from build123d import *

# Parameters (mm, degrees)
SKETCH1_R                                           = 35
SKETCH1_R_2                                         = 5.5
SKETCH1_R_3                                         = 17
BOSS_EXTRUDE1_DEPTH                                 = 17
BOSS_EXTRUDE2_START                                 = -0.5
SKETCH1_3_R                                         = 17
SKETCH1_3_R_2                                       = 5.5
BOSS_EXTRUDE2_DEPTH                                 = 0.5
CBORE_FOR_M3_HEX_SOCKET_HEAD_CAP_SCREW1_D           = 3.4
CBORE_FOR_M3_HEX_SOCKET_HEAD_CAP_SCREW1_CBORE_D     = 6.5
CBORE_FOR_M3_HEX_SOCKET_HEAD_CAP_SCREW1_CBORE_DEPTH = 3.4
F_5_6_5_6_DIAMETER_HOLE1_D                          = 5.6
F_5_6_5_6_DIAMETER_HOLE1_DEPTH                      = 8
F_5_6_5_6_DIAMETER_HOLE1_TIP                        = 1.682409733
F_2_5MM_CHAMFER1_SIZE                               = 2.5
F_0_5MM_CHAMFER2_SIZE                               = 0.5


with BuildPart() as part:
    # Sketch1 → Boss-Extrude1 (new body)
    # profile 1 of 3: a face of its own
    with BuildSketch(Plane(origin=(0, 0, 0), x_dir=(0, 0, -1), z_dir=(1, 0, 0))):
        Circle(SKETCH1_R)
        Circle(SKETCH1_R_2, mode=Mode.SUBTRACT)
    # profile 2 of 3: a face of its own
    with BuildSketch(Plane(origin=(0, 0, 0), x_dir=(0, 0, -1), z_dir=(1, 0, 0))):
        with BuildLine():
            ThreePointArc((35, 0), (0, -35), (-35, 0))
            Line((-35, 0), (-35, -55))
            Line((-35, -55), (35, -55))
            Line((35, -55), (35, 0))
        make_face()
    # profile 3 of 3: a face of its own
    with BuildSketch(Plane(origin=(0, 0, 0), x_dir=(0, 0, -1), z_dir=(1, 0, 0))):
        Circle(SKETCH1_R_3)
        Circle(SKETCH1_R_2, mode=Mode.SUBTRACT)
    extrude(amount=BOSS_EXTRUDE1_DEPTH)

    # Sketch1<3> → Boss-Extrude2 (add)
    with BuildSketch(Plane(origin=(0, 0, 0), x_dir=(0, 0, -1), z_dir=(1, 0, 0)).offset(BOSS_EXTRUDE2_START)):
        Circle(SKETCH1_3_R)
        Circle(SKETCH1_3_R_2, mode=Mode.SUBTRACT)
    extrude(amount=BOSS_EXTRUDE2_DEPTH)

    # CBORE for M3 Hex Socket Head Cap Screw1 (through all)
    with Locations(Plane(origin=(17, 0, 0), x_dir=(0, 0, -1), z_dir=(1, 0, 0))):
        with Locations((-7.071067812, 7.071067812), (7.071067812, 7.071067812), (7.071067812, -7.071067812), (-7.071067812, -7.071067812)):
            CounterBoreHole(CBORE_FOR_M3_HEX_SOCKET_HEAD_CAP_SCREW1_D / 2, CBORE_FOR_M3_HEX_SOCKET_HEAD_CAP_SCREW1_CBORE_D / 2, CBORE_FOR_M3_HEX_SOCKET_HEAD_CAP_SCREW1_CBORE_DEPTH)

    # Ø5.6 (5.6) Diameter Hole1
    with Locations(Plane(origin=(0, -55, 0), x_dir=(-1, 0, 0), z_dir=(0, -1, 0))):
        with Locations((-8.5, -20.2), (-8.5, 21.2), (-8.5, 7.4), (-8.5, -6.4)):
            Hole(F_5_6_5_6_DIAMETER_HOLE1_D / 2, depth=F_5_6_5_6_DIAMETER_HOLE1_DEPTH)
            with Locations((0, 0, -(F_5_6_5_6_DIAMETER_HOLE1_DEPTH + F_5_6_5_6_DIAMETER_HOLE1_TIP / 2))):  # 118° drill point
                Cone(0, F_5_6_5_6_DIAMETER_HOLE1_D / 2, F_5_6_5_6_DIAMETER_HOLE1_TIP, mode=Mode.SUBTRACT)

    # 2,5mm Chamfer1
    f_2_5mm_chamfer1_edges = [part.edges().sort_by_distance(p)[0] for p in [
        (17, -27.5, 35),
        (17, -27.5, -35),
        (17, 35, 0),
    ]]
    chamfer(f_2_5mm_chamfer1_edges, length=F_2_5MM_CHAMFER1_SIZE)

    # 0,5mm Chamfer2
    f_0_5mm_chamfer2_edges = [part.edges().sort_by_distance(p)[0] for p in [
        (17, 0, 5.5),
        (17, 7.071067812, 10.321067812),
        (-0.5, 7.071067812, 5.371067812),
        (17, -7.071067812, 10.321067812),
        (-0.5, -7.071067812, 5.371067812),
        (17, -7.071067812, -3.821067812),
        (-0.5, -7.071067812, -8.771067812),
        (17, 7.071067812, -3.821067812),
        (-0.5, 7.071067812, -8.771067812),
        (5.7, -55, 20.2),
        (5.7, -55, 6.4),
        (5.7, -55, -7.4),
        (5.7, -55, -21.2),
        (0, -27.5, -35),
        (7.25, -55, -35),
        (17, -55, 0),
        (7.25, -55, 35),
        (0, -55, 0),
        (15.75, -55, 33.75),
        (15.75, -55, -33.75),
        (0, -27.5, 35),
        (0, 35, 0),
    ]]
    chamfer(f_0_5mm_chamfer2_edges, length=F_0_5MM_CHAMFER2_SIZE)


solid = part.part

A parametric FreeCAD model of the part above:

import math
import FreeCAD as App
import Part
import Sketcher
Q = App.Units.Quantity


def edges_at(feature, points):
    """Names of the edges that pass closest to the given points."""
    edges = feature.Shape.Edges
    near = lambda p: min(range(len(edges)), key=lambda i: edges[i].distToShape(Part.Vertex(*p))[0])
    return sorted({f"Edge{near(p) + 1}" for p in points})

doc = App.newDocument("Part")
body = doc.addObject("PartDesign::Body", "Body")

sketch1 = body.newObject("Sketcher::SketchObject", "Sketch")
sketch1.AttachmentSupport = (doc.getObject("YZ_Plane"), [""])
sketch1.MapMode = "FlatFace"
sketch1.addGeometry([
    Part.ArcOfCircle(Part.Circle(App.Vector(0, 0, 0), App.Vector(0, 0, 1), 35), math.radians(-90), math.radians(90)),
    Part.LineSegment(App.Vector(0, 35, 0), App.Vector(-55, 35, 0)),
    Part.LineSegment(App.Vector(-55, 35, 0), App.Vector(-55, -35, 0)),
    Part.LineSegment(App.Vector(-55, -35, 0), App.Vector(0, -35, 0)),
    Part.Circle(App.Vector(0, 0, 0), App.Vector(0, 0, 1), 5.5),
], False)
sketch1.addConstraint([
    Sketcher.Constraint("Tangent", 0, 2, 1, 1),
    Sketcher.Constraint("Coincident", 1, 2, 2, 1),
    Sketcher.Constraint("Coincident", 2, 2, 3, 1),
    Sketcher.Constraint("Tangent", 3, 2, 0, 1),
    Sketcher.Constraint("Horizontal", 1),
    Sketcher.Constraint("Vertical", 2),
    Sketcher.Constraint("Horizontal", 3),
    Sketcher.Constraint("Coincident", 0, 3, -1, 1),
    Sketcher.Constraint("Coincident", 4, 3, -1, 1),
    Sketcher.Constraint("Diameter", 4, Q("11 mm")),
    Sketcher.Constraint("Radius", 0, Q("35 mm")),
    Sketcher.Constraint("DistanceX", 1, 2, 1, 1, Q("55 mm")),
])
pad1 = body.newObject("PartDesign::Pad", "Pad")
pad1.Profile = sketch1
pad1.Length = 17

sketch2 = body.newObject("Sketcher::SketchObject", "Sketch001")
sketch2.AttachmentSupport = (doc.getObject("YZ_Plane"), [""])
sketch2.MapMode = "FlatFace"
sketch2.AttachmentOffset = App.Placement(App.Vector(0, 0, -0.5), App.Rotation())
sketch2.addGeometry([
    Part.Circle(App.Vector(0, 0, 0), App.Vector(0, 0, 1), 17),
    Part.Circle(App.Vector(0, 0, 0), App.Vector(0, 0, 1), 5.5),
], False)
sketch2.addConstraint([
    Sketcher.Constraint("Coincident", 0, 3, -1, 1),
    Sketcher.Constraint("Coincident", 1, 3, -1, 1),
    Sketcher.Constraint("Diameter", 0, Q("34 mm")),
    Sketcher.Constraint("Diameter", 1, Q("11 mm")),
])
pad2 = body.newObject("PartDesign::Pad", "Pad001")
pad2.Profile = sketch2
pad2.Length = 0.5

sketch3 = body.newObject("Sketcher::SketchObject", "Sketch002")
sketch3.AttachmentSupport = (doc.getObject("YZ_Plane"), [""])
sketch3.MapMode = "FlatFace"
sketch3.AttachmentOffset = App.Placement(App.Vector(0, 0, 17), App.Rotation())
sketch3.addGeometry([
    Part.Circle(App.Vector(7.071068, 7.071068, 0), App.Vector(0, 0, 1), 1.7),
    Part.Circle(App.Vector(7.071068, -7.071068, 0), App.Vector(0, 0, 1), 1.7),
    Part.Circle(App.Vector(-7.071068, -7.071068, 0), App.Vector(0, 0, 1), 1.7),
    Part.Circle(App.Vector(-7.071068, 7.071068, 0), App.Vector(0, 0, 1), 1.7),
], False)
sketch3.addConstraint([
    Sketcher.Constraint("Equal", 0, 1),
    Sketcher.Constraint("Equal", 1, 2),
    Sketcher.Constraint("Equal", 2, 3),
    Sketcher.Constraint("Symmetric", 0, 3, 2, 3, -1, 1),
    Sketcher.Constraint("Symmetric", 1, 3, 3, 3, -1, 1),
    Sketcher.Constraint("Symmetric", 1, 3, 2, 3, -2),
    Sketcher.Constraint("Diameter", 0, Q("3.4 mm")),
    Sketcher.Constraint("DistanceX", -1, 1, 0, 3, Q("7.071068 mm")),
    Sketcher.Constraint("DistanceY", -1, 1, 0, 3, Q("7.071068 mm")),
])
doc.recompute()
hole = body.newObject("PartDesign::Hole", "Hole")
hole.Profile = sketch3
hole.ThreadType = "None"
hole.Diameter = 3.4
hole.DepthType = "ThroughAll"
hole.HoleCutType = "Counterbore"
hole.HoleCutDiameter = 6.5
hole.HoleCutDepth = 3.4

sketch4 = body.newObject("Sketcher::SketchObject", "Sketch003")
sketch4.AttachmentSupport = (doc.getObject("XZ_Plane"), [""])
sketch4.MapMode = "FlatFace"
sketch4.AttachmentOffset = App.Placement(App.Vector(0, 0, 55), App.Rotation())
sketch4.addGeometry([
    Part.Circle(App.Vector(8.5, 20.2, 0), App.Vector(0, 0, 1), 2.8),
    Part.Circle(App.Vector(8.5, -21.2, 0), App.Vector(0, 0, 1), 2.8),
    Part.Circle(App.Vector(8.5, -7.4, 0), App.Vector(0, 0, 1), 2.8),
    Part.Circle(App.Vector(8.5, 6.4, 0), App.Vector(0, 0, 1), 2.8),
], False)
sketch4.addConstraint([
    Sketcher.Constraint("Equal", 0, 1),
    Sketcher.Constraint("Equal", 1, 2),
    Sketcher.Constraint("Equal", 2, 3),
    Sketcher.Constraint("Vertical", 0, 3, 1, 3),
    Sketcher.Constraint("Vertical", 1, 3, 2, 3),
    Sketcher.Constraint("Vertical", 2, 3, 3, 3),
    Sketcher.Constraint("Diameter", 0, Q("5.6 mm")),
    Sketcher.Constraint("DistanceX", -1, 1, 0, 3, Q("8.5 mm")),
    Sketcher.Constraint("DistanceY", -1, 1, 0, 3, Q("20.2 mm")),
    Sketcher.Constraint("DistanceY", 1, 3, -1, 1, Q("21.2 mm")),
    Sketcher.Constraint("DistanceY", 2, 3, -1, 1, Q("7.4 mm")),
    Sketcher.Constraint("DistanceY", -1, 1, 3, 3, Q("6.4 mm")),
])
doc.recompute()
hole2 = body.newObject("PartDesign::Hole", "Hole001")
hole2.Profile = sketch4
hole2.ThreadType = "None"
hole2.Diameter = 5.6
hole2.DepthType = "Dimension"
hole2.Depth = 8
hole2.DrillPoint = "Angled"
hole2.DrillPointAngle = 118
doc.recompute()

chamfer = body.newObject("PartDesign::Chamfer", "Chamfer")
chamfer.Base = (hole2, edges_at(hole2, [(17, -27.5, 35), (17, -27.5, -35), (17, 35, 0)]))
chamfer.Size = 2.5
doc.recompute()

chamfer2 = body.newObject("PartDesign::Chamfer", "Chamfer001")
chamfer2.Base = (chamfer, edges_at(chamfer, [
    (17, 0, 5.5),
    (17, 7.071, 10.321),
    (-0.5, 7.071, 5.371),
    (17, -7.071, 10.321),
    (-0.5, -7.071, 5.371),
    (17, -7.071, -3.821),
    (-0.5, -7.071, -8.771),
    (17, 7.071, -3.821),
    (-0.5, 7.071, -8.771),
    (5.7, -55, 20.2),
    (5.7, -55, 6.4),
    (5.7, -55, -7.4),
    (5.7, -55, -21.2),
    (0, -27.5, -35),
    (7.25, -55, -35),
    (17, -55, 0),
    (7.25, -55, 35),
    (0, -55, 0),
    (15.75, -55, 33.75),
    (15.75, -55, -33.75),
    (0, -27.5, 35),
    (0, 35, 0),
]))
chamfer2.Size = 0.5

doc.recompute()
